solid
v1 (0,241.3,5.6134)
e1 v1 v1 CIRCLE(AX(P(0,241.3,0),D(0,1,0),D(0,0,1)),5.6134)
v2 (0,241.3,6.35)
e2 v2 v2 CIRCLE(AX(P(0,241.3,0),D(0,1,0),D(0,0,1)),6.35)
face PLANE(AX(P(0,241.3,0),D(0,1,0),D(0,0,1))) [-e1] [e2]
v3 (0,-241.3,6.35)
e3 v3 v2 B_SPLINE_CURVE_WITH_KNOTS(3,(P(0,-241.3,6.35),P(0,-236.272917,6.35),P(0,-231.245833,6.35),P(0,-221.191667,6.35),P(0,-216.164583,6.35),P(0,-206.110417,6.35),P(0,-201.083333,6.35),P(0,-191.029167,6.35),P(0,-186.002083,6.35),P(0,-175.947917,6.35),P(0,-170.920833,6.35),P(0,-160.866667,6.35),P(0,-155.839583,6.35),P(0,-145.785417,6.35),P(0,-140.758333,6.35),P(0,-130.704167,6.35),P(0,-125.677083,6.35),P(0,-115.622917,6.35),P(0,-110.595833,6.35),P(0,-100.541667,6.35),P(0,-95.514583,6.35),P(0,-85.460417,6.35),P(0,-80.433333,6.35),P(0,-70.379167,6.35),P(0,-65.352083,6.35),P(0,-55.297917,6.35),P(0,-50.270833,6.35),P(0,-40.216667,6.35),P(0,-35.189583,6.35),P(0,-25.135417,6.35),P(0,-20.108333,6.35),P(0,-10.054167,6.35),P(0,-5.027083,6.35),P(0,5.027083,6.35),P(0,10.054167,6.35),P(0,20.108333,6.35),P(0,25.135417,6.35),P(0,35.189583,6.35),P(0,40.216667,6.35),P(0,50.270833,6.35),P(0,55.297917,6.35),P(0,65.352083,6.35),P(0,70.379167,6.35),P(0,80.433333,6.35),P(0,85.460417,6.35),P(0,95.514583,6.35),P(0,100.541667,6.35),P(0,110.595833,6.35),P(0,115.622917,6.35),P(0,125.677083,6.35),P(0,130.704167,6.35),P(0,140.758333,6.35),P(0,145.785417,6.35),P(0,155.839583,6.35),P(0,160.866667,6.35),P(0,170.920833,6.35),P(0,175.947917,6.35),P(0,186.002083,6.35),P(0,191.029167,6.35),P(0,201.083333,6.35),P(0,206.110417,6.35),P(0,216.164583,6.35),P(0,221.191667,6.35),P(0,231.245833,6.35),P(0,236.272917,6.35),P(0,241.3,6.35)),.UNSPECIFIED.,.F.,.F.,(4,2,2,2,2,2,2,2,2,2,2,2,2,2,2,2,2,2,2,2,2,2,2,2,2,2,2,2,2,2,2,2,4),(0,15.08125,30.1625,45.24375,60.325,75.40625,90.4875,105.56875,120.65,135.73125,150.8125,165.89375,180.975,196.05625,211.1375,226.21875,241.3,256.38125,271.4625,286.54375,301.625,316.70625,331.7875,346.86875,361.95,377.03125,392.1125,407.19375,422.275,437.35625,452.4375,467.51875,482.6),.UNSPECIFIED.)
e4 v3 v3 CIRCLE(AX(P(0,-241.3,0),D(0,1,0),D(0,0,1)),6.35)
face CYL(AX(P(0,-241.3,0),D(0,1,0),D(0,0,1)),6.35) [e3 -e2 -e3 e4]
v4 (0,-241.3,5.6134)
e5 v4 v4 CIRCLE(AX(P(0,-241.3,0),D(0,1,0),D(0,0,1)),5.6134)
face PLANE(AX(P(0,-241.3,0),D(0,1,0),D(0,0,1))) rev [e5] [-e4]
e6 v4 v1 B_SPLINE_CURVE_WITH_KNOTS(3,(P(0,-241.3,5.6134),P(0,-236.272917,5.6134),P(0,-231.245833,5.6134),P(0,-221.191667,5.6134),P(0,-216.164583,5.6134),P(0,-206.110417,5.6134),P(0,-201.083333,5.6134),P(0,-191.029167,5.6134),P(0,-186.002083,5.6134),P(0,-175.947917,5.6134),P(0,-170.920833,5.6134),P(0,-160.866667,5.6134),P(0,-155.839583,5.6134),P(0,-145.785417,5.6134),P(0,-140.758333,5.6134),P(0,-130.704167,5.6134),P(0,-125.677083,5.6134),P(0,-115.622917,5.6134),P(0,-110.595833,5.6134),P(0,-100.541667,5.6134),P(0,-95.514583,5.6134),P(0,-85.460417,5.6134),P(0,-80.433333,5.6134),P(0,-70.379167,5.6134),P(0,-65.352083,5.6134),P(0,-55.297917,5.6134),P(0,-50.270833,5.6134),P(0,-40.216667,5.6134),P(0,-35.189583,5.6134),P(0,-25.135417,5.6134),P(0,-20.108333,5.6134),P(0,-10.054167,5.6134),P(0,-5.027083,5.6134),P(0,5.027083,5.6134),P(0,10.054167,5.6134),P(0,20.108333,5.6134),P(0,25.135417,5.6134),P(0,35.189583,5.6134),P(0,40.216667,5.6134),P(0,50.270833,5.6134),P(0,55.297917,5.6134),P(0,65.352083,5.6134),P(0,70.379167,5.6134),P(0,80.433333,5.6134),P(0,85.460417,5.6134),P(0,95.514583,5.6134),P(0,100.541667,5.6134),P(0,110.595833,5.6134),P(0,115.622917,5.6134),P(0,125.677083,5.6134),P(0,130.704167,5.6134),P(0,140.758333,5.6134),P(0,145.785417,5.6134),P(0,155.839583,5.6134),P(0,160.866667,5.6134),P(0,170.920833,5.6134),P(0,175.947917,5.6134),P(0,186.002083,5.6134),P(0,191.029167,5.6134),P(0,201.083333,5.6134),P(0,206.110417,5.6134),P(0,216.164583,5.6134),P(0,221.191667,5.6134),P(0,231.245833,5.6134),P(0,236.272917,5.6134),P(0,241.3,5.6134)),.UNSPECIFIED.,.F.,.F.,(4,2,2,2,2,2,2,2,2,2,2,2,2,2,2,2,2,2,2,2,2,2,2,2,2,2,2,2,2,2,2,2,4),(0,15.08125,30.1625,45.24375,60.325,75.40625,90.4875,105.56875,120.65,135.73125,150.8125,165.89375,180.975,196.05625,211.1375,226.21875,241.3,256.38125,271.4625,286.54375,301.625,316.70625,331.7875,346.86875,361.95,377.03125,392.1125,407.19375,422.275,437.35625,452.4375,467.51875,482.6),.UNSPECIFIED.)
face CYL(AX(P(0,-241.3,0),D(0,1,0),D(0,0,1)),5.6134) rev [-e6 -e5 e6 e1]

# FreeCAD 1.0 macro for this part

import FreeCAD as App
import Part
import Sketcher
Q = App.Units.Quantity

doc = App.newDocument("Part")
body = doc.addObject("PartDesign::Body", "Body")

# Sketch on XZ plane
sketch1 = body.newObject("Sketcher::SketchObject", "Sketch")
sketch1.AttachmentSupport = (doc.getObject("XZ_Plane"), [""])
sketch1.MapMode = "FlatFace"
sketch1.addGeometry(Part.Circle(App.Vector(0, 0, 0), App.Vector(0, 0, 1), 6.35), False)
sketch1.addGeometry(Part.Circle(App.Vector(0, 0, 0), App.Vector(0, 0, 1), 5.6134), False)
sketch1.addConstraint(Sketcher.Constraint("Coincident", 0, 3, -1, 1))
sketch1.addConstraint(Sketcher.Constraint("Coincident", 1, 3, -1, 1))
sketch1.addConstraint(Sketcher.Constraint("Diameter", 0, Q("0.5 in")))
sketch1.addConstraint(Sketcher.Constraint("Diameter", 1, Q("0.442 in")))
pad1 = body.newObject("PartDesign::Pad", "Pad")
pad1.Profile = sketch1
pad1.Type = "TwoLengths"
pad1.Length = Q("9.5 in")
pad1.Length2 = Q("9.5 in")
pad1.Reversed = True

doc.recompute()
